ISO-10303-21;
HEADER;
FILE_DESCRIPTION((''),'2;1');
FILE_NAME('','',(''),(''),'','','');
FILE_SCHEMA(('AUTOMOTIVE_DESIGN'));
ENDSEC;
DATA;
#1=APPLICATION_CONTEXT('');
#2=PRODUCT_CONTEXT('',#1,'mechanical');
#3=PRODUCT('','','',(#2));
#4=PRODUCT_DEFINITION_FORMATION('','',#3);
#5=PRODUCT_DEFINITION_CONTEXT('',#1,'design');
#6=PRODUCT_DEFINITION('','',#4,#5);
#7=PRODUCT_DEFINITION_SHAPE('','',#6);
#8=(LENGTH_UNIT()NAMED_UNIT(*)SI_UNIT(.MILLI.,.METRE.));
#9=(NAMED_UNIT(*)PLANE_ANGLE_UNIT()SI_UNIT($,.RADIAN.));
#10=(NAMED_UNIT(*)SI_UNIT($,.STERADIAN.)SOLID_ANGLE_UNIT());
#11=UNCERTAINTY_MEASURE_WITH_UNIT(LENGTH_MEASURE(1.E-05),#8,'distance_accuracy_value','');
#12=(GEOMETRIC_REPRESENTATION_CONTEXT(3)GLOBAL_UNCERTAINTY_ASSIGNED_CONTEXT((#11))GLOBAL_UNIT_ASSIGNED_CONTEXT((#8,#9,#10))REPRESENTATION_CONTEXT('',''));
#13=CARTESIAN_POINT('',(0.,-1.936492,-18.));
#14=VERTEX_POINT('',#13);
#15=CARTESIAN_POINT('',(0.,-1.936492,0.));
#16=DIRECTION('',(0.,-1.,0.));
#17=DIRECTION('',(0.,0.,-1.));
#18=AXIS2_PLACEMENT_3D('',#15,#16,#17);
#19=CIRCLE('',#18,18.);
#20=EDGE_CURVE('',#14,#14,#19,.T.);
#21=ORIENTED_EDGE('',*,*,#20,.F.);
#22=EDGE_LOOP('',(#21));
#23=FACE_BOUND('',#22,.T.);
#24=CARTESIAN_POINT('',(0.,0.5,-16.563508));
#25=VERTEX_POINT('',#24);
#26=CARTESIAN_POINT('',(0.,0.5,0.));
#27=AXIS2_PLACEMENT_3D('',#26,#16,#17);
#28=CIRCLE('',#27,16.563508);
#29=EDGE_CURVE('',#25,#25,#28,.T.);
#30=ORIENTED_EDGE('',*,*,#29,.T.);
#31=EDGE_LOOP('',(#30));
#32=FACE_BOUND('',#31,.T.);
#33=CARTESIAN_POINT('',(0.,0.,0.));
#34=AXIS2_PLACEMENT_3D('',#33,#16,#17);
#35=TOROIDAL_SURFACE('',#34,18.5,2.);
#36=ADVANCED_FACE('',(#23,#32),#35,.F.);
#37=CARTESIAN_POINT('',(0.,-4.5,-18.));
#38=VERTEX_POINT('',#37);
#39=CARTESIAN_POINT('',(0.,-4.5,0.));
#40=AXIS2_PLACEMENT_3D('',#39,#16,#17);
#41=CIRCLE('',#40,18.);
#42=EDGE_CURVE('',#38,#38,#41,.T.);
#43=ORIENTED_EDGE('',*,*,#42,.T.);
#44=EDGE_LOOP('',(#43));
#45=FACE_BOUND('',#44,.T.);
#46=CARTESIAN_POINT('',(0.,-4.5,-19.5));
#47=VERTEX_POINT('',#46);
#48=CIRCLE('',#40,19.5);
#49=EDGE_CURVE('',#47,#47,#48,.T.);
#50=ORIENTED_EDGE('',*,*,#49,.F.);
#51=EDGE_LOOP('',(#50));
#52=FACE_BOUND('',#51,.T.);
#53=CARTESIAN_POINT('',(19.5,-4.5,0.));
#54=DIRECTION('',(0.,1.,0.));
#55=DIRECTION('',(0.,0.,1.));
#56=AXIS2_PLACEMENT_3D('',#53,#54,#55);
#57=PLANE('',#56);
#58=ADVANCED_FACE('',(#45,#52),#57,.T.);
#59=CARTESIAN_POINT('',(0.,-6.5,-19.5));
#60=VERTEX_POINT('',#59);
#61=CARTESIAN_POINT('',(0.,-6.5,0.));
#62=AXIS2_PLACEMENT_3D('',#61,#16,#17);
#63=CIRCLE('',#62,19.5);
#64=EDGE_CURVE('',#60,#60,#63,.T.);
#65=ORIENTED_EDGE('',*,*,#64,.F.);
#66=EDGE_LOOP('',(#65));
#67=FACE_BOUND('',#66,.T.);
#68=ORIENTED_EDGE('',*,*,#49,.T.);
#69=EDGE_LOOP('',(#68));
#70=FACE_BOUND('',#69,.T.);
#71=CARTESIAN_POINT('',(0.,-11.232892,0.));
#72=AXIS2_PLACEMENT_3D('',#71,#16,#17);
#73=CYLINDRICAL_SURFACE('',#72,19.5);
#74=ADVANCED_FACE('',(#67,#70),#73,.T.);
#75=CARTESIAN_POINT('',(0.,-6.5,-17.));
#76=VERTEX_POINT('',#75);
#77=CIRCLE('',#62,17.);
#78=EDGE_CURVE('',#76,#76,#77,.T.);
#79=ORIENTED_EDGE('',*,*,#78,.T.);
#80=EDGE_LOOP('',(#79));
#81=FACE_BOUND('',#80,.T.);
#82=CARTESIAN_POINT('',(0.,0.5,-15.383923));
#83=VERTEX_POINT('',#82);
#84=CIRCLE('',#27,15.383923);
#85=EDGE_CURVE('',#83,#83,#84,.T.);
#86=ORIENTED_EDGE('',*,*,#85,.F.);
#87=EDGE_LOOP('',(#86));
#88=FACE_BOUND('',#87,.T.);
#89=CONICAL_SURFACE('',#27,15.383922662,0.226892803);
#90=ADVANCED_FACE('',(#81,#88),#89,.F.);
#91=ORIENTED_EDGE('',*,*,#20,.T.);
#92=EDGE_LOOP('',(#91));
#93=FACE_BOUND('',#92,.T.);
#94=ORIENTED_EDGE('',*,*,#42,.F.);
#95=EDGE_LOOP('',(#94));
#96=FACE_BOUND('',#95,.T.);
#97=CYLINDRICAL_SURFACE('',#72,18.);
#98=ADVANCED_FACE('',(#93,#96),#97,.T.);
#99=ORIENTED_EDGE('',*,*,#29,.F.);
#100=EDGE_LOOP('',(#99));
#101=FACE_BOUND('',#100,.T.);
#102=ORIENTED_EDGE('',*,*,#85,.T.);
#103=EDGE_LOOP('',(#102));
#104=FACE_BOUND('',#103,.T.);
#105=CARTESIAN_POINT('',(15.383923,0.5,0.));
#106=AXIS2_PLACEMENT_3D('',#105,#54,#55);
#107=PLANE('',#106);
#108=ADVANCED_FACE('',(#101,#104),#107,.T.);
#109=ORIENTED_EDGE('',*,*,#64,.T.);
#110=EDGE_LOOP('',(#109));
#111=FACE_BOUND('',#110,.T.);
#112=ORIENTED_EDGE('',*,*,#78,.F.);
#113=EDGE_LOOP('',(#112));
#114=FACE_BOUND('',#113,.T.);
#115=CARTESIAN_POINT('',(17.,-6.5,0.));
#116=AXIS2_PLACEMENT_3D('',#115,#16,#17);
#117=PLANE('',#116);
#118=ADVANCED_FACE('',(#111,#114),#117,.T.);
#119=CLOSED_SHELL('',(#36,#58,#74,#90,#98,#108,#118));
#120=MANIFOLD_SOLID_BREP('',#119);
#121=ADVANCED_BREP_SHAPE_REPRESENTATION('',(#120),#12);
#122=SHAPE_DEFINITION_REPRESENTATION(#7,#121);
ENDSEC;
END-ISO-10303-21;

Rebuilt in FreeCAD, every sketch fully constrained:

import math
import FreeCAD as App
import Part
import Sketcher
from FreeCAD import Vector
Q = App.Units.Quantity

doc = App.newDocument("Part")
body = doc.addObject("PartDesign::Body", "Body")

# Sketch on XY plane
sketch1 = body.newObject("Sketcher::SketchObject", "Sketch")
sketch1.AttachmentSupport = (doc.getObject("XY_Plane"), [""])
sketch1.MapMode = "FlatFace"
sketch1.addGeometry([
    Part.LineSegment(Vector(17, -6.5, 0), Vector(19.5, -6.5, 0)),  # 0
    Part.LineSegment(Vector(19.5, -6.5, 0), Vector(19.5, -4.5, 0)),  # 1
    Part.LineSegment(Vector(19.5, -4.5, 0), Vector(18, -4.5, 0)),  # 2
    Part.LineSegment(Vector(18, -4.5, 0), Vector(18, -1.9, 0)),  # 3
    Part.ArcOfCircle(Part.Circle(Vector(18.5, 0, 0), Vector(0, 0, 1), 2), math.radians(166), math.radians(256)),  # 4
    Part.LineSegment(Vector(16.6, 0.5, 0), Vector(15.4, 0.5, 0)),  # 5
    Part.LineSegment(Vector(15.4, 0.5, 0), Vector(17, -6.5, 0)),  # 6
], False)
sketch1.addConstraint([
    Sketcher.Constraint("Coincident", 0, 2, 1, 1),
    Sketcher.Constraint("Coincident", 1, 2, 2, 1),
    Sketcher.Constraint("Coincident", 2, 2, 3, 1),
    Sketcher.Constraint("Coincident", 3, 2, 4, 2),
    Sketcher.Constraint("Coincident", 4, 1, 5, 1),
    Sketcher.Constraint("Coincident", 5, 2, 6, 1),
    Sketcher.Constraint("Coincident", 6, 2, 0, 1),
    Sketcher.Constraint("Horizontal", 0),
    Sketcher.Constraint("Vertical", 1),
    Sketcher.Constraint("Horizontal", 2),
    Sketcher.Constraint("Vertical", 3),
    Sketcher.Constraint("Horizontal", 5),
    Sketcher.Constraint("PointOnObject", 4, 3, -1),
    Sketcher.Constraint("Radius", 4, 2.0),
    Sketcher.Constraint("DistanceY", 1, 1, 1, 2, 2.0),
    Sketcher.Constraint("Angle", 6, Q("-77 deg")),
    Sketcher.Constraint("DistanceX", 0, 1, 0, 2, 2.5),
    Sketcher.Constraint("DistanceX", 2, 2, 2, 1, 1.5),
    Sketcher.Constraint("DistanceX", -1, 1, 2, 2, 18.0),
    Sketcher.Constraint("DistanceX", 4, 3, 0, 2, 1.0),
    Sketcher.Constraint("DistanceY", 2, 2, 4, 1, 5.0),
    Sketcher.Constraint("DistanceY", 0, 2, -1, 1, 6.5),
])
revolution = body.newObject("PartDesign::Revolution", "Revolution")
revolution.Profile = sketch1
revolution.ReferenceAxis = (sketch1, ["V_Axis"])
revolution.Angle = 360

doc.recompute()
